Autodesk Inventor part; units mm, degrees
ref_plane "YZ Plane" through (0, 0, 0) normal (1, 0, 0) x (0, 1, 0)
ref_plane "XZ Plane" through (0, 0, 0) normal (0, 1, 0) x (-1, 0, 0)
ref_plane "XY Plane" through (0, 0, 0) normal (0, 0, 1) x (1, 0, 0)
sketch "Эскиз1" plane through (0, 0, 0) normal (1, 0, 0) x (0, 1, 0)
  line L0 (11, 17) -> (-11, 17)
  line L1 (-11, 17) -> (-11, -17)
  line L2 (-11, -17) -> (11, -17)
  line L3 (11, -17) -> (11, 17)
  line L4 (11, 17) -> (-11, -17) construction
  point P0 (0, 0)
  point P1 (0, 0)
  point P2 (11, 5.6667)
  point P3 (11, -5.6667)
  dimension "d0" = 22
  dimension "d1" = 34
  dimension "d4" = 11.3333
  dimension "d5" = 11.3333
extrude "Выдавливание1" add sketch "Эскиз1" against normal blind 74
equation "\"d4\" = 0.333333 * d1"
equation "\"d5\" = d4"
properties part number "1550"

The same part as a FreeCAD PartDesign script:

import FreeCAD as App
import Part
import Sketcher
from FreeCAD import Vector
Q = App.Units.Quantity


def add_polygon(sketch, points):
    """Adds a closed chain of lines whose ends are joined by coincident constraints."""
    first, n = sketch.GeometryCount, len(points)
    for a, b in zip(points, points[1:] + points[:1]):
        sketch.addGeometry(Part.LineSegment(App.Vector(*a, 0), App.Vector(*b, 0)), False)
    for i in range(n):
        sketch.addConstraint(Sketcher.Constraint("Coincident", first + i, 2, first + (i + 1) % n, 1))

doc = App.newDocument("Part")
body = doc.addObject("PartDesign::Body", "Body")

# Sketch on YZ plane
sketch1 = body.newObject("Sketcher::SketchObject", "Sketch")
sketch1.AttachmentSupport = (doc.getObject("YZ_Plane"), [""])
sketch1.MapMode = "FlatFace"
add_polygon(sketch1, [(11, -17), (11, 17), (-11, 17), (-11, -17)])  # lines 0-3
sketch1.addConstraint(Sketcher.Constraint("Vertical", 0))
sketch1.addConstraint(Sketcher.Constraint("Horizontal", 1))
sketch1.addConstraint(Sketcher.Constraint("Vertical", 2))
sketch1.addConstraint(Sketcher.Constraint("Horizontal", 3))
sketch1.addConstraint(Sketcher.Constraint("Symmetric", 0, 2, 2, 2, -1, 1))
sketch1.addConstraint(Sketcher.Constraint("DistanceX", 1, 2, 1, 1, Q("22 mm")))
sketch1.addConstraint(Sketcher.Constraint("DistanceY", 0, 1, 0, 2, Q("34 mm")))
pad1 = body.newObject("PartDesign::Pad", "Pad")
pad1.Profile = sketch1
pad1.Length = 74
pad1.Reversed = True

doc.recompute()
